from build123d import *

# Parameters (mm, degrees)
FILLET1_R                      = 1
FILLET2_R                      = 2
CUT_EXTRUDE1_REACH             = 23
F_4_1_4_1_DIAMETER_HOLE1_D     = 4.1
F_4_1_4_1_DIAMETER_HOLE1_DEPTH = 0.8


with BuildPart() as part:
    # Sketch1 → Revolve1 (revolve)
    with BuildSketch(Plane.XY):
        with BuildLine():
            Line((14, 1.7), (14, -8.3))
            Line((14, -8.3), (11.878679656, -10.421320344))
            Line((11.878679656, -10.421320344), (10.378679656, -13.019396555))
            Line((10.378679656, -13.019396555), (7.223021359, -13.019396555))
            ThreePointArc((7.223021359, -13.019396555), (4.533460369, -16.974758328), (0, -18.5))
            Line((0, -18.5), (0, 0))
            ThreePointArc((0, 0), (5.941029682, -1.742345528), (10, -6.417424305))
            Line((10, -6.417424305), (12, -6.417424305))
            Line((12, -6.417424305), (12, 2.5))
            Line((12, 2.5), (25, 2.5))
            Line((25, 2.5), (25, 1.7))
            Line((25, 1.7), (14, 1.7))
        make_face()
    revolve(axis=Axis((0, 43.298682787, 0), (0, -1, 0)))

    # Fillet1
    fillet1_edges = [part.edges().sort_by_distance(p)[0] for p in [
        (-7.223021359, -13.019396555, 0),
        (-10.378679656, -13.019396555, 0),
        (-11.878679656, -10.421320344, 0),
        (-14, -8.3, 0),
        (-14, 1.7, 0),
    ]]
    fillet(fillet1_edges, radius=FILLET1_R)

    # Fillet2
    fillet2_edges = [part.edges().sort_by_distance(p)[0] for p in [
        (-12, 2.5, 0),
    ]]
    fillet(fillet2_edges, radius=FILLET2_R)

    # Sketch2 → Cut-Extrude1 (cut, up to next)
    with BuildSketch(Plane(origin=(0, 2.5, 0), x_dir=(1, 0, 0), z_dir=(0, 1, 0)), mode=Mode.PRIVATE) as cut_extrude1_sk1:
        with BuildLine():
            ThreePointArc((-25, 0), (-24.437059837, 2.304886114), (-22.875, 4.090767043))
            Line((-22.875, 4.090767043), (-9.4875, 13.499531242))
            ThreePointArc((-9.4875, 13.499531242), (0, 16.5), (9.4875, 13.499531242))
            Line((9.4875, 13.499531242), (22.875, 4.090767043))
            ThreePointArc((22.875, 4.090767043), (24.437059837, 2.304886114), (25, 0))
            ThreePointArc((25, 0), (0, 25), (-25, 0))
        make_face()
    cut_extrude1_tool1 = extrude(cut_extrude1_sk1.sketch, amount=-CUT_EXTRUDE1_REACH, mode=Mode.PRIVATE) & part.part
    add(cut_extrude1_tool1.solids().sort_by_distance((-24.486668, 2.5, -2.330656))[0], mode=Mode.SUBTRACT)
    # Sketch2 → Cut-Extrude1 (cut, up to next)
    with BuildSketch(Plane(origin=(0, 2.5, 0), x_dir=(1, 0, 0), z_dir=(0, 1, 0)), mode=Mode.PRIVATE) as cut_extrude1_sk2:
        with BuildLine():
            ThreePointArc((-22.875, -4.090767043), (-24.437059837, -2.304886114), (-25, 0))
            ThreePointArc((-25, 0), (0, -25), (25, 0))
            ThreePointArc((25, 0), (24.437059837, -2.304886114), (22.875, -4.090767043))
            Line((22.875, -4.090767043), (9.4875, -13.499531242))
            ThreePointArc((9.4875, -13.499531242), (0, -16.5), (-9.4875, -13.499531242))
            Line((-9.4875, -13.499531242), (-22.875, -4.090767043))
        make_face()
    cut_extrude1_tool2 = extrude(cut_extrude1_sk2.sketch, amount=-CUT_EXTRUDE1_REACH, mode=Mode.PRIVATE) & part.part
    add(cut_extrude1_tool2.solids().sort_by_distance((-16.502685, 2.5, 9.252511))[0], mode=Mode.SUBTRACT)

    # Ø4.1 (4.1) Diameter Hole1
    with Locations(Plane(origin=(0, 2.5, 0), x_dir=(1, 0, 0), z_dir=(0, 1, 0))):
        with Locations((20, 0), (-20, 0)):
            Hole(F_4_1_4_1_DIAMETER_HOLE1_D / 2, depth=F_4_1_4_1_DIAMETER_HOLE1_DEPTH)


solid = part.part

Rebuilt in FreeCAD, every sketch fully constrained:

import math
import FreeCAD as App
import Part
import Sketcher

V = App.Vector
Q = App.Units.Quantity


def edges_at(feature, points):
    """Names of the edges that pass closest to the given points."""
    edges = feature.Shape.Edges
    near = lambda p: min(range(len(edges)), key=lambda i: edges[i].distToShape(Part.Vertex(*p))[0])
    return sorted({f"Edge{near(p) + 1}" for p in points})

doc = App.newDocument("Part")
body = doc.addObject("PartDesign::Body", "Body")

# Sketch on XY plane
sketch1 = body.newObject("Sketcher::SketchObject", "Sketch")
sketch1.AttachmentSupport = (doc.getObject("XY_Plane"), [""])
sketch1.MapMode = "FlatFace"
sketch1.addGeometry(Part.LineSegment(V(14, -8.3, 0), V(14, 1.7, 0)), False)
sketch1.addGeometry(Part.LineSegment(V(14, 1.7, 0), V(25, 1.7, 0)), False)
sketch1.addGeometry(Part.LineSegment(V(25, 1.7, 0), V(25, 2.5, 0)), False)
sketch1.addGeometry(Part.LineSegment(V(25, 2.5, 0), V(12, 2.5, 0)), False)
sketch1.addGeometry(Part.LineSegment(V(12, 2.5, 0), V(12, -6.4, 0)), False)
sketch1.addGeometry(Part.LineSegment(V(12, -6.4, 0), V(10, -6.4, 0)), False)
sketch1.addGeometry(Part.ArcOfCircle(Part.Circle(V(0, -11, 0), V(0, 0, 1), 11), math.radians(25), math.radians(90)), False)
sketch1.addGeometry(Part.LineSegment(V(0, 0, 0), V(0, -18.5, 0)), False)
sketch1.addGeometry(Part.ArcOfCircle(Part.Circle(V(0, -11, 0), V(0, 0, 1), 7.5), math.radians(-90), math.radians(-16)), False)
sketch1.addGeometry(Part.LineSegment(V(7.2, -13, 0), V(10.4, -13, 0)), False)
sketch1.addGeometry(Part.LineSegment(V(10.4, -13, 0), V(11.9, -10.4, 0)), False)
sketch1.addGeometry(Part.LineSegment(V(11.9, -10.4, 0), V(14, -8.3, 0)), False)
sketch1.addConstraint(Sketcher.Constraint("Coincident", 0, 2, 1, 1))
sketch1.addConstraint(Sketcher.Constraint("Coincident", 1, 2, 2, 1))
sketch1.addConstraint(Sketcher.Constraint("Coincident", 2, 2, 3, 1))
sketch1.addConstraint(Sketcher.Constraint("Coincident", 3, 2, 4, 1))
sketch1.addConstraint(Sketcher.Constraint("Coincident", 4, 2, 5, 1))
sketch1.addConstraint(Sketcher.Constraint("Coincident", 5, 2, 6, 1))
sketch1.addConstraint(Sketcher.Constraint("Coincident", 6, 2, 7, 1))
sketch1.addConstraint(Sketcher.Constraint("Coincident", 7, 2, 8, 1))
sketch1.addConstraint(Sketcher.Constraint("Coincident", 8, 2, 9, 1))
sketch1.addConstraint(Sketcher.Constraint("Coincident", 9, 2, 10, 1))
sketch1.addConstraint(Sketcher.Constraint("Coincident", 10, 2, 11, 1))
sketch1.addConstraint(Sketcher.Constraint("Coincident", 11, 2, 0, 1))
sketch1.addConstraint(Sketcher.Constraint("Vertical", 0))
sketch1.addConstraint(Sketcher.Constraint("Horizontal", 1))
sketch1.addConstraint(Sketcher.Constraint("Vertical", 2))
sketch1.addConstraint(Sketcher.Constraint("Horizontal", 3))
sketch1.addConstraint(Sketcher.Constraint("Vertical", 4))
sketch1.addConstraint(Sketcher.Constraint("Horizontal", 5))
sketch1.addConstraint(Sketcher.Constraint("Vertical", 7))
sketch1.addConstraint(Sketcher.Constraint("Horizontal", 9))
sketch1.addConstraint(Sketcher.Constraint("Coincident", 6, 2, -1, 1))
sketch1.addConstraint(Sketcher.Constraint("Coincident", 8, 3, 6, 3))
sketch1.addConstraint(Sketcher.Constraint("PointOnObject", 6, 3, -2))
sketch1.addConstraint(Sketcher.Constraint("Equal", 10, 11))
sketch1.addConstraint(Sketcher.Constraint("Radius", 6, 11.0))
sketch1.addConstraint(Sketcher.Constraint("Radius", 8, 7.5))
sketch1.addConstraint(Sketcher.Constraint("DistanceX", 1, 1, 1, 2, 11.0))
sketch1.addConstraint(Sketcher.Constraint("DistanceX", 3, 2, 3, 1, 13.0))
sketch1.addConstraint(Sketcher.Constraint("DistanceX", 5, 2, 5, 1, 2.0))
sketch1.addConstraint(Sketcher.Constraint("DistanceY", 0, 1, 0, 2, 10.0))
sketch1.addConstraint(Sketcher.Constraint("Angle", 10, Q("60 deg")))
sketch1.addConstraint(Sketcher.Constraint("Angle", 11, Q("45 deg")))
sketch1.addConstraint(Sketcher.Constraint("Distance", 10, 3.0))
sketch1.addConstraint(Sketcher.Constraint("DistanceY", 2, 1, 2, 2, 0.8))
sketch1.addConstraint(Sketcher.Constraint("DistanceX", -1, 1, 0, 2, 14.0))
sketch1.addConstraint(Sketcher.Constraint("DistanceY", -1, 1, 0, 2, 1.7))
revolution = body.newObject("PartDesign::Revolution", "Revolution")
revolution.Profile = sketch1
revolution.ReferenceAxis = (sketch1, ["V_Axis"])
revolution.Angle = 360
doc.recompute()

fillet = body.newObject("PartDesign::Fillet", "Fillet")
fillet.Base = (revolution, edges_at(revolution, [
    (-7.223, -13.019, 0),
    (-10.379, -13.019, 0),
    (-11.879, -10.421, 0),
    (-14, -8.3, 0),
    (-14, 1.7, 0),
]))
fillet.Radius = 1
doc.recompute()

fillet2 = body.newObject("PartDesign::Fillet", "Fillet001")
fillet2.Base = (fillet, edges_at(fillet, [(-12, 2.5, 0)]))
fillet2.Radius = 2

# Sketch on XZ plane
sketch2 = body.newObject("Sketcher::SketchObject", "Sketch001")
sketch2.AttachmentSupport = (doc.getObject("XZ_Plane"), [""])
sketch2.MapMode = "FlatFace"
sketch2.AttachmentOffset = App.Placement(V(0, 0, -2.5), App.Rotation())
sketch2.addGeometry(Part.ArcOfCircle(Part.Circle(V(-20, 0, 0), V(0, 0, 1), 5), math.radians(-180), math.radians(-125)), False)
sketch2.addGeometry(Part.LineSegment(V(-22.9, -4.1, 0), V(-9.5, -13.5, 0)), False)
sketch2.addGeometry(Part.ArcOfCircle(Part.Circle(V(0, 0, 0), V(0, 0, 1), 16.5), math.radians(-125), math.radians(-55)), False)
sketch2.addGeometry(Part.LineSegment(V(9.5, -13.5, 0), V(22.9, -4.1, 0)), False)
sketch2.addGeometry(Part.ArcOfCircle(Part.Circle(V(20, 0, 0), V(0, 0, 1), 5), math.radians(-55), math.radians(0)), False)
sketch2.addGeometry(Part.ArcOfCircle(Part.Circle(V(0, 0, 0), V(0, 0, 1), 25), math.radians(180), math.radians(360)), False)
sketch2.addConstraint(Sketcher.Constraint("Tangent", 0, 2, 1, 1))
sketch2.addConstraint(Sketcher.Constraint("Tangent", 1, 2, 2, 1))
sketch2.addConstraint(Sketcher.Constraint("Tangent", 2, 2, 3, 1))
sketch2.addConstraint(Sketcher.Constraint("Tangent", 3, 2, 4, 1))
sketch2.addConstraint(Sketcher.Constraint("Tangent", 4, 2, 5, 2))
sketch2.addConstraint(Sketcher.Constraint("Tangent", 5, 1, 0, 1))
sketch2.addConstraint(Sketcher.Constraint("Coincident", 2, 3, -1, 1))
sketch2.addConstraint(Sketcher.Constraint("Coincident", 5, 3, -1, 1))
sketch2.addConstraint(Sketcher.Constraint("Equal", 0, 4))
sketch2.addConstraint(Sketcher.Constraint("PointOnObject", 0, 3, -1))
sketch2.addConstraint(Sketcher.Constraint("PointOnObject", 4, 3, -1))
sketch2.addConstraint(Sketcher.Constraint("Radius", 0, 5.0))
sketch2.addConstraint(Sketcher.Constraint("Radius", 5, 25.0))
sketch2.addConstraint(Sketcher.Constraint("Radius", 2, 16.5))
pocket1 = body.newObject("PartDesign::Pocket", "Pocket")
pocket1.Profile = sketch2
pocket1.Type = "UpToFirst"
pocket1.Reversed = True

# Sketch on XZ plane
sketch3 = body.newObject("Sketcher::SketchObject", "Sketch002")
sketch3.AttachmentSupport = (doc.getObject("XZ_Plane"), [""])
sketch3.MapMode = "FlatFace"
sketch3.AttachmentOffset = App.Placement(V(0, 0, -2.5), App.Rotation())
sketch3.addGeometry(Part.ArcOfCircle(Part.Circle(V(-20, 0, 0), V(0, 0, 1), 5), math.radians(125), math.radians(180)), False)
sketch3.addGeometry(Part.ArcOfCircle(Part.Circle(V(0, 0, 0), V(0, 0, 1), 25), math.radians(0), math.radians(180)), False)
sketch3.addGeometry(Part.ArcOfCircle(Part.Circle(V(20, 0, 0), V(0, 0, 1), 5), math.radians(0), math.radians(55)), False)
sketch3.addGeometry(Part.LineSegment(V(22.9, 4.1, 0), V(9.5, 13.5, 0)), False)
sketch3.addGeometry(Part.ArcOfCircle(Part.Circle(V(0, 0, 0), V(0, 0, 1), 16.5), math.radians(55), math.radians(125)), False)
sketch3.addGeometry(Part.LineSegment(V(-9.5, 13.5, 0), V(-22.9, 4.1, 0)), False)
sketch3.addConstraint(Sketcher.Constraint("Tangent", 0, 2, 1, 2))
sketch3.addConstraint(Sketcher.Constraint("Tangent", 1, 1, 2, 1))
sketch3.addConstraint(Sketcher.Constraint("Tangent", 2, 2, 3, 1))
sketch3.addConstraint(Sketcher.Constraint("Tangent", 3, 2, 4, 1))
sketch3.addConstraint(Sketcher.Constraint("Tangent", 4, 2, 5, 1))
sketch3.addConstraint(Sketcher.Constraint("Tangent", 5, 2, 0, 1))
sketch3.addConstraint(Sketcher.Constraint("Coincident", 1, 3, -1, 1))
sketch3.addConstraint(Sketcher.Constraint("Coincident", 4, 3, -1, 1))
sketch3.addConstraint(Sketcher.Constraint("Equal", 0, 2))
sketch3.addConstraint(Sketcher.Constraint("PointOnObject", 0, 3, -1))
sketch3.addConstraint(Sketcher.Constraint("PointOnObject", 2, 3, -1))
sketch3.addConstraint(Sketcher.Constraint("Radius", 0, 5.0))
sketch3.addConstraint(Sketcher.Constraint("Radius", 1, 25.0))
sketch3.addConstraint(Sketcher.Constraint("Radius", 4, 16.5))
pocket2 = body.newObject("PartDesign::Pocket", "Pocket001")
pocket2.Profile = sketch3
pocket2.Type = "UpToFirst"
pocket2.Reversed = True

# Sketch on XZ plane
sketch4 = body.newObject("Sketcher::SketchObject", "Sketch003")
sketch4.AttachmentSupport = (doc.getObject("XZ_Plane"), [""])
sketch4.MapMode = "FlatFace"
sketch4.AttachmentOffset = App.Placement(V(0, 0, -2.5), App.Rotation())
sketch4.addGeometry(Part.Circle(V(20, 0, 0), V(0, 0, 1), 2), False)
sketch4.addGeometry(Part.Circle(V(-20, 0, 0), V(0, 0, 1), 2), False)
sketch4.addConstraint(Sketcher.Constraint("Equal", 0, 1))
sketch4.addConstraint(Sketcher.Constraint("Symmetric", 0, 3, 1, 3, -1, 1))
sketch4.addConstraint(Sketcher.Constraint("PointOnObject", 0, 3, -1))
sketch4.addConstraint(Sketcher.Constraint("Diameter", 0, 4.1))
sketch4.addConstraint(Sketcher.Constraint("DistanceX", -1, 1, 0, 3, 20.0))
doc.recompute()
hole = body.newObject("PartDesign::Hole", "Hole")
hole.Profile = sketch4
hole.ThreadType = "None"
hole.Diameter = 4.1
hole.DepthType = "Dimension"
hole.Depth = 0.8
hole.DrillPoint = "Flat"
hole.Reversed = True

doc.recompute()
